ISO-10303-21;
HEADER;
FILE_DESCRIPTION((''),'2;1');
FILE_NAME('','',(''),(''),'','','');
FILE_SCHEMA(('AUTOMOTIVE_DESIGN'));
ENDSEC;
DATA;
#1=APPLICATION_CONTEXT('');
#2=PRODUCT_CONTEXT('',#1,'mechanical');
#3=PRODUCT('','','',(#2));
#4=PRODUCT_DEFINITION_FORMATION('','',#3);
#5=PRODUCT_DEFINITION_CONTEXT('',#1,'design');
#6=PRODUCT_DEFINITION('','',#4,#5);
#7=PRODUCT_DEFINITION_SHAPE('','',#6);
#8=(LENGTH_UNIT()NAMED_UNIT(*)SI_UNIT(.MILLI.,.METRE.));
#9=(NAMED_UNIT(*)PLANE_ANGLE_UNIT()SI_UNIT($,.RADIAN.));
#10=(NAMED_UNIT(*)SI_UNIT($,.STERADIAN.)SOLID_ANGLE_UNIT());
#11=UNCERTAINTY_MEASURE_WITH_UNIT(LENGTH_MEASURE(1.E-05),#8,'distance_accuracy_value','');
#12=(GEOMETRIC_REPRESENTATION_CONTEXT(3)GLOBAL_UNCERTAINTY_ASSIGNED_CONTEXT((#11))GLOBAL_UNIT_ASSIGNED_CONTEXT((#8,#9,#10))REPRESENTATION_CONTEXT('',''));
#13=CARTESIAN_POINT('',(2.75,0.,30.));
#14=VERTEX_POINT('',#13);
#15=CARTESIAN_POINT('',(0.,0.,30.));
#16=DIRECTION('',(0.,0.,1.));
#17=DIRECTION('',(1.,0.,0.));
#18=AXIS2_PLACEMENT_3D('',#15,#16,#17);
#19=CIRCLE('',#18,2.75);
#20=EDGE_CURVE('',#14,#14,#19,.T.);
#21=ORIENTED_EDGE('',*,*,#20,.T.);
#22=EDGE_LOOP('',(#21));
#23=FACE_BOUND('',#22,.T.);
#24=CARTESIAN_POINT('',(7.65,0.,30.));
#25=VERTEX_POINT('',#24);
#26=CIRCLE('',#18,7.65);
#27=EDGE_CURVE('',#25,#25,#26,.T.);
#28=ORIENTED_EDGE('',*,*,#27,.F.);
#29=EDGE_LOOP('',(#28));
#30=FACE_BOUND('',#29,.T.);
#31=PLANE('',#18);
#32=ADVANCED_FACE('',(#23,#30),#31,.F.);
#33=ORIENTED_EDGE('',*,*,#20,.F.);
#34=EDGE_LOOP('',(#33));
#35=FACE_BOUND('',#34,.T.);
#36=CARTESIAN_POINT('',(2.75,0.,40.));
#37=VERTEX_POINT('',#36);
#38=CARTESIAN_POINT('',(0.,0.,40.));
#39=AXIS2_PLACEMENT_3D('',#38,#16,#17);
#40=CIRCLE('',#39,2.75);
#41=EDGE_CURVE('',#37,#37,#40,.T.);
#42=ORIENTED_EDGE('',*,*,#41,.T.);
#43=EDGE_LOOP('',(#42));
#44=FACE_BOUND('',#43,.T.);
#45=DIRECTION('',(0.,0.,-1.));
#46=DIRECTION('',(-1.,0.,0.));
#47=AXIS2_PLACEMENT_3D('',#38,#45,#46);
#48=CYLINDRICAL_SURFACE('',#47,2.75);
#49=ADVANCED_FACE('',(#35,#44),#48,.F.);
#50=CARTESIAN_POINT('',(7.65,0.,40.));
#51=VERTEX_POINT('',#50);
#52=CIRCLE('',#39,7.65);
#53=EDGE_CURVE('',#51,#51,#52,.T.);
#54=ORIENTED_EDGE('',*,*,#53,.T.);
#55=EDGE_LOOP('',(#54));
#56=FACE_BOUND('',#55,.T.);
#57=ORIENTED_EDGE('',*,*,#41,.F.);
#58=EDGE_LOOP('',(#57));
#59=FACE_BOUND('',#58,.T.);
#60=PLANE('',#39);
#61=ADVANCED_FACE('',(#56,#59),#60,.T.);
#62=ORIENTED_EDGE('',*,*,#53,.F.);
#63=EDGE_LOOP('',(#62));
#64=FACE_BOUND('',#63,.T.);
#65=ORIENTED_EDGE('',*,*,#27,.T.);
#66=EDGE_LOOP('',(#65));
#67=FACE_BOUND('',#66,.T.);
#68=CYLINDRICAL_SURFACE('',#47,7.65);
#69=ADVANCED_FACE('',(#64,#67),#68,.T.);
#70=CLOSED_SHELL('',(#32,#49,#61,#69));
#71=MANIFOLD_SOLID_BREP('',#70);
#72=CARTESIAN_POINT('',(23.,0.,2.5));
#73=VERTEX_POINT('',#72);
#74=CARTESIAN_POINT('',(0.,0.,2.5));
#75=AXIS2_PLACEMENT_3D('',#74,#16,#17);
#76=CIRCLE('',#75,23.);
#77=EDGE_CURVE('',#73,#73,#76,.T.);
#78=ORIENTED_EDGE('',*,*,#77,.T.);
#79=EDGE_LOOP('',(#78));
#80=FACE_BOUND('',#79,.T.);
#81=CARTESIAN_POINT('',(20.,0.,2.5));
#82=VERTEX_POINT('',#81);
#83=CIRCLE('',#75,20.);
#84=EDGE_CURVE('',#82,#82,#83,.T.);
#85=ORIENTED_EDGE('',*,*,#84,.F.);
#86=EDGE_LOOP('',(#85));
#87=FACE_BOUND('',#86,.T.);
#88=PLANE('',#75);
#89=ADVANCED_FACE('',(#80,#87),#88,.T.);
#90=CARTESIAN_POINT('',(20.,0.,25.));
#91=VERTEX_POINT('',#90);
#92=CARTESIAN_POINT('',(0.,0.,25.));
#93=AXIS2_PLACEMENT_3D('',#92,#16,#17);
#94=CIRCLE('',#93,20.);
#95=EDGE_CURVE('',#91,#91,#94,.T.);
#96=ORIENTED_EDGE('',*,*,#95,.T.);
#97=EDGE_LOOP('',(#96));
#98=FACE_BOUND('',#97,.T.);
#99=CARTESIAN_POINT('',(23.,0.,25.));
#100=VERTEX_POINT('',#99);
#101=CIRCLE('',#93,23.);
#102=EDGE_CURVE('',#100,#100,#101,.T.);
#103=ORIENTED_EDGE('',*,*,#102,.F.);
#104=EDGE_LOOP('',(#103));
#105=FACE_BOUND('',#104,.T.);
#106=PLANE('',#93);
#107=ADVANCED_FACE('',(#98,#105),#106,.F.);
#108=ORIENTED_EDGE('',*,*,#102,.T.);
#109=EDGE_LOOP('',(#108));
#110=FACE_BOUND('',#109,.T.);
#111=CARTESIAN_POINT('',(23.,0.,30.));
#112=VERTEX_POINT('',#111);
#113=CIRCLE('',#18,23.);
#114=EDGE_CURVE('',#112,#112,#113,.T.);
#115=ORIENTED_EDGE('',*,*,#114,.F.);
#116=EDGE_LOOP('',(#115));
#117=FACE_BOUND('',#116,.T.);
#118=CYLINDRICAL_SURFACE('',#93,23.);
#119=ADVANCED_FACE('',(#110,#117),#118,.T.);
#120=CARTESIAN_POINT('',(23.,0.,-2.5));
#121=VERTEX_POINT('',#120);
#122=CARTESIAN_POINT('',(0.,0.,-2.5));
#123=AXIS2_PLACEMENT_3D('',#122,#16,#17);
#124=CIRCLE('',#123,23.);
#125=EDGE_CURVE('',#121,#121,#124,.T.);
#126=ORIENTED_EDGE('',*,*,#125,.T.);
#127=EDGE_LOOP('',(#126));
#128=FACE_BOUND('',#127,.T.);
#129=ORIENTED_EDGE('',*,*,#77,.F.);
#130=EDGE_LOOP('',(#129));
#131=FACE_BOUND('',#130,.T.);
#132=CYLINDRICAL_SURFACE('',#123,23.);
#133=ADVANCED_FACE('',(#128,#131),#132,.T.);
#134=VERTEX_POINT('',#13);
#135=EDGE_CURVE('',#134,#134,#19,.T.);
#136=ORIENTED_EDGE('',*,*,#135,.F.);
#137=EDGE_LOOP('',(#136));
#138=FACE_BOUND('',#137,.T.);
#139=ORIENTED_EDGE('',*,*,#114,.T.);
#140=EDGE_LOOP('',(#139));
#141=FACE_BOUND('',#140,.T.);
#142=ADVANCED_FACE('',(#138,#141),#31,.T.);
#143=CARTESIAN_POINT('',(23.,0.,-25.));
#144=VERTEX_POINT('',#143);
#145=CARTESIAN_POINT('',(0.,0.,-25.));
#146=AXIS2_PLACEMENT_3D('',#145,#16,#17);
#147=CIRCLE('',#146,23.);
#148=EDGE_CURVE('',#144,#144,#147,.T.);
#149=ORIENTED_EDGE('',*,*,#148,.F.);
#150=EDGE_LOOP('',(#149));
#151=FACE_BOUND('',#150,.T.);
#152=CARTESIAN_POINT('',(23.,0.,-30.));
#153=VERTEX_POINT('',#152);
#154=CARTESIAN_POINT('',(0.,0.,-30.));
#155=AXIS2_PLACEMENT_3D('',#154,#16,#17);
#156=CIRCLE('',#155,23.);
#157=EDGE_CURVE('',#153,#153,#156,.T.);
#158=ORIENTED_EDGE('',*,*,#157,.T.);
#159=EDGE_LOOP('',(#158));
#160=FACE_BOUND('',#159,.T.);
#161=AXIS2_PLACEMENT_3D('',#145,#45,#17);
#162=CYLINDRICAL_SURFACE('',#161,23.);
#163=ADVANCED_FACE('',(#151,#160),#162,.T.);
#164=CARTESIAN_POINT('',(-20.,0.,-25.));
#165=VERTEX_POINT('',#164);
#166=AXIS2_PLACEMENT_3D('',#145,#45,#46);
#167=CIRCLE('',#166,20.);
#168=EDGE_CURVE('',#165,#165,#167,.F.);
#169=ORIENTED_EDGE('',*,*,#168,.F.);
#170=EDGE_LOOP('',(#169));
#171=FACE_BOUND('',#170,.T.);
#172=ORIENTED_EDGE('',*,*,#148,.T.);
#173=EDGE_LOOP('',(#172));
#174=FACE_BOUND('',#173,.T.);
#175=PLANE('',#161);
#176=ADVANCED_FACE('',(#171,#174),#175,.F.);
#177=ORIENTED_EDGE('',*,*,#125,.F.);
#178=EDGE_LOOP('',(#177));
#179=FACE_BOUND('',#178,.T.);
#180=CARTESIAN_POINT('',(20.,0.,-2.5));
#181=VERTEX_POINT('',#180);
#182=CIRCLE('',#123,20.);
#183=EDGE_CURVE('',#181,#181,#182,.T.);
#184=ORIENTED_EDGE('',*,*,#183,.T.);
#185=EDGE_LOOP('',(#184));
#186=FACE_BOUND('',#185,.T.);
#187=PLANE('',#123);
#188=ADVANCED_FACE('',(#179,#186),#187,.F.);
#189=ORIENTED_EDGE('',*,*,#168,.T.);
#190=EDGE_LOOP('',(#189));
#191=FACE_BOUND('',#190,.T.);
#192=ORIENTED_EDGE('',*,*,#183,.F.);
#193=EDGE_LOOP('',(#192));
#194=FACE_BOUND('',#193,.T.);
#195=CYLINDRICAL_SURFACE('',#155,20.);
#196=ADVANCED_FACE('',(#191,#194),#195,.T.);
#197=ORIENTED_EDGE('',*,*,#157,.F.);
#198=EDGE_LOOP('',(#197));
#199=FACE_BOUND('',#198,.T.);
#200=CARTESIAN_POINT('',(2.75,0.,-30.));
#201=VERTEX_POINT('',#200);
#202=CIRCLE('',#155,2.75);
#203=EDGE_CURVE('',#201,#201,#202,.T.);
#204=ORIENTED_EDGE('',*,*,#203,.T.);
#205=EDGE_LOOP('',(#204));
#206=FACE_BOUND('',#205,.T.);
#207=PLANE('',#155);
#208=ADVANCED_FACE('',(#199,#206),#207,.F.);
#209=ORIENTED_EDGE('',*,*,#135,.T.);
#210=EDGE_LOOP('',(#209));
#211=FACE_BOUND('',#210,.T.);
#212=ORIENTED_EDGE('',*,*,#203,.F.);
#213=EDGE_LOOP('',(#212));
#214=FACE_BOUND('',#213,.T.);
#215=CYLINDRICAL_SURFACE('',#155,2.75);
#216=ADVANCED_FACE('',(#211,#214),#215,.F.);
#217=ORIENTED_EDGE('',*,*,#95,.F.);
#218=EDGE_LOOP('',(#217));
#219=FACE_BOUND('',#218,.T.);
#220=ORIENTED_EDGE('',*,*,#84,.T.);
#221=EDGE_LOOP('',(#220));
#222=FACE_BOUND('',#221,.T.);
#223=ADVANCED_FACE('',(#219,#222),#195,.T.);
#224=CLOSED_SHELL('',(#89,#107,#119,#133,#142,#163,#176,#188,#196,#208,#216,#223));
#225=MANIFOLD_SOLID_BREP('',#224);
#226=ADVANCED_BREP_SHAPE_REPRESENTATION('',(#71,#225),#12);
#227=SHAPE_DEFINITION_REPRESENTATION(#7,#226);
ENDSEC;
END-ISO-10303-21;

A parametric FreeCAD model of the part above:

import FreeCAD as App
import Part
import Sketcher

V = App.Vector

doc = App.newDocument("Part")
body = doc.addObject("PartDesign::Body", "Body")

# Sketch on XY plane
sketch1 = body.newObject("Sketcher::SketchObject", "Sketch")
sketch1.AttachmentSupport = (doc.getObject("XY_Plane"), [""])
sketch1.MapMode = "FlatFace"
sketch1.addGeometry(Part.Circle(V(0, 0, 0), V(0, 0, 1), 23), False)
sketch1.addConstraint([
    Sketcher.Constraint("Coincident", 0, 3, -1, 1),
    Sketcher.Constraint("Diameter", 0, 46.0),
])
pad1 = body.newObject("PartDesign::Pad", "Pad")
pad1.Profile = sketch1
pad1.Type = "TwoLengths"
pad1.Length = 2.5
pad1.Length2 = 2.5

# Sketch on XY plane
sketch2 = body.newObject("Sketcher::SketchObject", "Sketch001")
sketch2.AttachmentSupport = (doc.getObject("XY_Plane"), [""])
sketch2.MapMode = "FlatFace"
sketch2.addGeometry(Part.Circle(V(0, 0, 0), V(0, 0, 1), 20), False)
sketch2.addConstraint([
    Sketcher.Constraint("Coincident", 0, 3, -1, 1),
    Sketcher.Constraint("Diameter", 0, 40.0),
])
pad2 = body.newObject("PartDesign::Pad", "Pad001")
pad2.Profile = sketch2
pad2.Type = "TwoLengths"
pad2.Length = 30
pad2.Length2 = 30

# Sketch on XY plane
sketch3 = body.newObject("Sketcher::SketchObject", "Sketch002")
sketch3.AttachmentSupport = (doc.getObject("XY_Plane"), [""])
sketch3.MapMode = "FlatFace"
sketch3.AttachmentOffset = App.Placement(V(0, 0, 30), App.Rotation())
sketch3.addGeometry([
    Part.Circle(V(0, 0, 0), V(0, 0, 1), 23),
    Part.Circle(V(0, 0, 0), V(0, 0, 1), 20),
], False)
sketch3.addConstraint([
    Sketcher.Constraint("Coincident", 0, 3, -1, 1),
    Sketcher.Constraint("Coincident", 1, 3, -1, 1),
    Sketcher.Constraint("Diameter", 0, 46.0),
    Sketcher.Constraint("Diameter", 1, 40.0),
])
pad3 = body.newObject("PartDesign::Pad", "Pad002")
pad3.Profile = sketch3
pad3.Length = 5
pad3.Reversed = True
doc.recompute()

mirrored = body.newObject("PartDesign::Mirrored", "Mirrored")
mirrored.Originals = [pad3]
mirrored.MirrorPlane = (doc.getObject("XY_Plane"), [""])
body.Tip = mirrored

# Sketch on XY plane
sketch4 = body.newObject("Sketcher::SketchObject", "Sketch003")
sketch4.AttachmentSupport = (doc.getObject("XY_Plane"), [""])
sketch4.MapMode = "FlatFace"
sketch4.AttachmentOffset = App.Placement(V(0, 0, 30), App.Rotation())
sketch4.addGeometry(Part.Circle(V(0, 0, 0), V(0, 0, 1), 2.8), False)
sketch4.addConstraint([
    Sketcher.Constraint("Coincident", 0, 3, -1, 1),
    Sketcher.Constraint("Diameter", 0, 5.5),
])
pocket1 = body.newObject("PartDesign::Pocket", "Pocket")
pocket1.Profile = sketch4
pocket1.Type = "ThroughAll"
body2 = doc.addObject("PartDesign::Body", "Body001")

# Sketch on XY plane
sketch5 = body2.newObject("Sketcher::SketchObject", "Sketch004")
sketch5.AttachmentSupport = (doc.getObject("XY_Plane001"), [""])
sketch5.MapMode = "FlatFace"
sketch5.AttachmentOffset = App.Placement(V(0, 0, 30), App.Rotation())
sketch5.addGeometry([
    Part.Circle(V(0, 0, 0), V(0, 0, 1), 7.7),
    Part.Circle(V(0, 0, 0), V(0, 0, 1), 2.8),
], False)
sketch5.addConstraint([
    Sketcher.Constraint("Coincident", 0, 3, -1, 1),
    Sketcher.Constraint("Coincident", 1, 3, -1, 1),
    Sketcher.Constraint("Diameter", 0, 15.3),
    Sketcher.Constraint("Diameter", 1, 5.5),
])
pad4 = body2.newObject("PartDesign::Pad", "Pad003")
pad4.Profile = sketch5
pad4.Length = 10

doc.recompute()
